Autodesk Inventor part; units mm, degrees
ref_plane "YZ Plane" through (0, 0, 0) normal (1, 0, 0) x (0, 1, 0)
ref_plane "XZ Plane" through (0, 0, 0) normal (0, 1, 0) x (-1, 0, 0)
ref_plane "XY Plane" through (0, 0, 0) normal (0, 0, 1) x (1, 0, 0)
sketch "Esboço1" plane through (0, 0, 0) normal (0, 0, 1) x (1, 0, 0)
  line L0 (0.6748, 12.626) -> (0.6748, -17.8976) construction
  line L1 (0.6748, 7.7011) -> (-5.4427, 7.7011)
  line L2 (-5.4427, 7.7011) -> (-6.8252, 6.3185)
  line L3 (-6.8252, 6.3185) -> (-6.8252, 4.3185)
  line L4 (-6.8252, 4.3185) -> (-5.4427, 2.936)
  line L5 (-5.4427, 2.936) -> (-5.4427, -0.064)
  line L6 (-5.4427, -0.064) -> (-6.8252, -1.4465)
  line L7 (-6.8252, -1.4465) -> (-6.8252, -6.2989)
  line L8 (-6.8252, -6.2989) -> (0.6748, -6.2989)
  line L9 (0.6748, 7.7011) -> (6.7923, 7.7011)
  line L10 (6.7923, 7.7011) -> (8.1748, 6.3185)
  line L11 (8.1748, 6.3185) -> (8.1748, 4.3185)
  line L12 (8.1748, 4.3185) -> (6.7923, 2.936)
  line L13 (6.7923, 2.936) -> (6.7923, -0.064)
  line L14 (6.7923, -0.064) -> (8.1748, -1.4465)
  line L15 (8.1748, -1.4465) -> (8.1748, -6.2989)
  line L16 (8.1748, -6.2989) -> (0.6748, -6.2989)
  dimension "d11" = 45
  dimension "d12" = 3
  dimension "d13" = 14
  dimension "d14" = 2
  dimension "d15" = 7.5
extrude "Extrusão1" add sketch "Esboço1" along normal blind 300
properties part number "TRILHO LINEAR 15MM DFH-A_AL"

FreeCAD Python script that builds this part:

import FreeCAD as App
import Part
import Sketcher

V = App.Vector
Q = App.Units.Quantity


def add_polygon(sketch, points):
    """Adds a closed chain of lines whose ends are joined by coincident constraints."""
    first, n = sketch.GeometryCount, len(points)
    for a, b in zip(points, points[1:] + points[:1]):
        sketch.addGeometry(Part.LineSegment(App.Vector(*a, 0), App.Vector(*b, 0)), False)
    for i in range(n):
        sketch.addConstraint(Sketcher.Constraint("Coincident", first + i, 2, first + (i + 1) % n, 1))

doc = App.newDocument("Part")
params = doc.addObject("Spreadsheet::Sheet", "Params")
for row, (alias, value) in enumerate([
    ("sketch1_height", "2 mm"),
    ("sketch1_height2", "3 mm"),
    ("sketch1_width", "15 mm"),
    ("pad1_length", "300 mm"),
], start=1):
    params.set(f"A{row}", alias)
    params.set(f"B{row}", "=" + value)
    params.setAlias(f"B{row}", alias)

body = doc.addObject("PartDesign::Body", "Body")

sketch1 = body.newObject("Sketcher::SketchObject", "Sketch")
sketch1.AttachmentSupport = (doc.getObject("XY_Plane"), [""])
sketch1.MapMode = "FlatFace"
add_polygon(sketch1, [(6.8, 7.7), (-5.4, 7.7), (-6.8, 6.3), (-6.8, 4.3), (-5.4, 2.9), (-5.4, -0.1), (-6.8, -1.4), (-6.8, -6.3), (8.2, -6.3), (8.2, -1.4), (6.8, -0.1), (6.8, 2.9), (8.2, 4.3), (8.2, 6.3)])
sketch1.addConstraint([
    Sketcher.Constraint("Horizontal", 0),
    Sketcher.Constraint("Vertical", 2),
    Sketcher.Constraint("Vertical", 4),
    Sketcher.Constraint("Vertical", 6),
    Sketcher.Constraint("Horizontal", 7),
    Sketcher.Constraint("Vertical", 8),
    Sketcher.Constraint("Vertical", 10),
    Sketcher.Constraint("Vertical", 12),
    Sketcher.Constraint("Perpendicular", 1, 3),
    Sketcher.Constraint("Perpendicular", 3, 5),
    Sketcher.Constraint("Perpendicular", 5, 9),
    Sketcher.Constraint("Perpendicular", 9, 11),
    Sketcher.Constraint("Perpendicular", 11, 13),
    Sketcher.Constraint("Horizontal", 5, 2, 8, 2),
    Sketcher.Constraint("Horizontal", 4, 2, 9, 2),
    Sketcher.Constraint("Horizontal", 3, 2, 10, 2),
    Sketcher.Constraint("Horizontal", 2, 2, 11, 2),
    Sketcher.Constraint("Horizontal", 1, 2, 12, 2),
    Sketcher.Constraint("Vertical", 0, 2, 3, 2),
    Sketcher.Constraint("Vertical", 2, 2, 5, 2),
    Sketcher.Constraint("Vertical", 8, 2, 11, 2),
    Sketcher.Constraint("DistanceY", 2, 2, 2, 1, Q("2 mm")),
    Sketcher.Constraint("DistanceY", 4, 2, 4, 1, Q("3 mm")),
    Sketcher.Constraint("DistanceX", 7, 1, 7, 2, Q("15 mm")),
    Sketcher.Constraint("DistanceX", 0, 2, 0, 1, Q("12.235 mm")),
    Sketcher.Constraint("DistanceY", 6, 2, 6, 1, Q("4.8524 mm")),
    Sketcher.Constraint("DistanceY", -1, 1, 0, 2, Q("7.701 mm")),
    Sketcher.Constraint("DistanceX", 0, 2, -1, 1, Q("5.4427 mm")),
])
sketch1.setExpression("Constraints[35]", "Params.sketch1_height")
sketch1.setExpression("Constraints[36]", "Params.sketch1_height2")
sketch1.setExpression("Constraints[37]", "Params.sketch1_width")
pad1 = body.newObject("PartDesign::Pad", "Pad")
pad1.Profile = sketch1
pad1.setExpression("Length", "Params.pad1_length")

doc.recompute()
